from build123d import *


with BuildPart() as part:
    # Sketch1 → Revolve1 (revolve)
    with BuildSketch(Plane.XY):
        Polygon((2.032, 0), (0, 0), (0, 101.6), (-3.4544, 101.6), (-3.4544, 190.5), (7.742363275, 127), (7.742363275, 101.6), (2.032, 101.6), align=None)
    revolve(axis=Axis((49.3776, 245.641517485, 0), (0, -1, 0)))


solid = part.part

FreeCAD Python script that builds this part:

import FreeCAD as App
import Part
import Sketcher

V = App.Vector
Q = App.Units.Quantity

doc = App.newDocument("Part")
params = doc.addObject("Spreadsheet::Sheet", "Params")
for row, (alias, value) in enumerate([
    ("sketch1_height", "4 in"),
    ("sketch1_height2", "1 in"),
    ("sketch1_height3", "3.5 in"),
    ("sketch1_width", "0.08 in"),
    ("sketch1_width2", "0.136 in"),
    ("revolution_angle", "360 deg"),
], start=1):
    params.set(f"A{row}", alias)
    params.set(f"B{row}", "=" + value)
    params.setAlias(f"B{row}", alias)

body = doc.addObject("PartDesign::Body", "Body")

# Sketch on XY plane
sketch1 = body.newObject("Sketcher::SketchObject", "Sketch")
sketch1.AttachmentSupport = (doc.getObject("XY_Plane"), [""])
sketch1.MapMode = "FlatFace"
sketch1.addGeometry([
    Part.LineSegment(V(0, 0, 0), V(2.032, 0, 0)),  # 0
    Part.LineSegment(V(2.032, 0, 0), V(2.032, 101.6, 0)),  # 1
    Part.LineSegment(V(2.032, 101.6, 0), V(7.742363, 101.6, 0)),  # 2
    Part.LineSegment(V(7.742363, 101.6, 0), V(7.742363, 127, 0)),  # 3
    Part.LineSegment(V(7.742363, 127, 0), V(-3.4544, 190.5, 0)),  # 4
    Part.LineSegment(V(-3.4544, 190.5, 0), V(-3.4544, 101.6, 0)),  # 5
    Part.LineSegment(V(-3.4544, 101.6, 0), V(0, 101.6, 0)),  # 6
    Part.LineSegment(V(0, 101.6, 0), V(0, 0, 0)),  # 7
], False)
sketch1.addGeometry(Part.LineSegment(V(49.3776, 190.5, 0), V(49.3776, 0, 0)), True)  # axis
sketch1.addConstraint([
    Sketcher.Constraint("Coincident", 0, 2, 1, 1),
    Sketcher.Constraint("Coincident", 1, 2, 2, 1),
    Sketcher.Constraint("Coincident", 2, 2, 3, 1),
    Sketcher.Constraint("Coincident", 3, 2, 4, 1),
    Sketcher.Constraint("Coincident", 4, 2, 5, 1),
    Sketcher.Constraint("Coincident", 5, 2, 6, 1),
    Sketcher.Constraint("Coincident", 6, 2, 7, 1),
    Sketcher.Constraint("Coincident", 7, 2, 0, 1),
    Sketcher.Constraint("Horizontal", 0),
    Sketcher.Constraint("Vertical", 1),
    Sketcher.Constraint("Horizontal", 2),
    Sketcher.Constraint("Vertical", 3),
    Sketcher.Constraint("Vertical", 5),
    Sketcher.Constraint("Horizontal", 6),
    Sketcher.Constraint("Vertical", 7),
    Sketcher.Constraint("Vertical", 8),
    Sketcher.Constraint("Coincident", 7, 2, -1, 1),
    Sketcher.Constraint("PointOnObject", 8, 2, -1),
    Sketcher.Constraint("Horizontal", 2, 2, 5, 2),
    Sketcher.Constraint("Horizontal", 4, 2, 8, 1),
    Sketcher.Constraint("DistanceY", 1, 1, 1, 2, Q("4 in")),
    Sketcher.Constraint("DistanceY", 3, 1, 3, 2, Q("1 in")),
    Sketcher.Constraint("DistanceY", 5, 2, 5, 1, Q("3.5 in")),
    Sketcher.Constraint("Angle", 4, Q("100 deg")),
    Sketcher.Constraint("DistanceX", 0, 1, 0, 2, Q("0.08 in")),
    Sketcher.Constraint("DistanceX", 6, 1, 6, 2, Q("0.136 in")),
    Sketcher.Constraint("DistanceX", 4, 2, 8, 1, Q("2.08 in")),
])
sketch1.setExpression("Constraints[20]", "Params.sketch1_height")
sketch1.setExpression("Constraints[21]", "Params.sketch1_height2")
sketch1.setExpression("Constraints[22]", "Params.sketch1_height3")
sketch1.setExpression("Constraints[24]", "Params.sketch1_width")
sketch1.setExpression("Constraints[25]", "Params.sketch1_width2")
revolution = body.newObject("PartDesign::Revolution", "Revolution")
revolution.Profile = sketch1
revolution.ReferenceAxis = (sketch1, ["Axis0"])
revolution.setExpression("Angle", "Params.revolution_angle")

doc.recompute()
